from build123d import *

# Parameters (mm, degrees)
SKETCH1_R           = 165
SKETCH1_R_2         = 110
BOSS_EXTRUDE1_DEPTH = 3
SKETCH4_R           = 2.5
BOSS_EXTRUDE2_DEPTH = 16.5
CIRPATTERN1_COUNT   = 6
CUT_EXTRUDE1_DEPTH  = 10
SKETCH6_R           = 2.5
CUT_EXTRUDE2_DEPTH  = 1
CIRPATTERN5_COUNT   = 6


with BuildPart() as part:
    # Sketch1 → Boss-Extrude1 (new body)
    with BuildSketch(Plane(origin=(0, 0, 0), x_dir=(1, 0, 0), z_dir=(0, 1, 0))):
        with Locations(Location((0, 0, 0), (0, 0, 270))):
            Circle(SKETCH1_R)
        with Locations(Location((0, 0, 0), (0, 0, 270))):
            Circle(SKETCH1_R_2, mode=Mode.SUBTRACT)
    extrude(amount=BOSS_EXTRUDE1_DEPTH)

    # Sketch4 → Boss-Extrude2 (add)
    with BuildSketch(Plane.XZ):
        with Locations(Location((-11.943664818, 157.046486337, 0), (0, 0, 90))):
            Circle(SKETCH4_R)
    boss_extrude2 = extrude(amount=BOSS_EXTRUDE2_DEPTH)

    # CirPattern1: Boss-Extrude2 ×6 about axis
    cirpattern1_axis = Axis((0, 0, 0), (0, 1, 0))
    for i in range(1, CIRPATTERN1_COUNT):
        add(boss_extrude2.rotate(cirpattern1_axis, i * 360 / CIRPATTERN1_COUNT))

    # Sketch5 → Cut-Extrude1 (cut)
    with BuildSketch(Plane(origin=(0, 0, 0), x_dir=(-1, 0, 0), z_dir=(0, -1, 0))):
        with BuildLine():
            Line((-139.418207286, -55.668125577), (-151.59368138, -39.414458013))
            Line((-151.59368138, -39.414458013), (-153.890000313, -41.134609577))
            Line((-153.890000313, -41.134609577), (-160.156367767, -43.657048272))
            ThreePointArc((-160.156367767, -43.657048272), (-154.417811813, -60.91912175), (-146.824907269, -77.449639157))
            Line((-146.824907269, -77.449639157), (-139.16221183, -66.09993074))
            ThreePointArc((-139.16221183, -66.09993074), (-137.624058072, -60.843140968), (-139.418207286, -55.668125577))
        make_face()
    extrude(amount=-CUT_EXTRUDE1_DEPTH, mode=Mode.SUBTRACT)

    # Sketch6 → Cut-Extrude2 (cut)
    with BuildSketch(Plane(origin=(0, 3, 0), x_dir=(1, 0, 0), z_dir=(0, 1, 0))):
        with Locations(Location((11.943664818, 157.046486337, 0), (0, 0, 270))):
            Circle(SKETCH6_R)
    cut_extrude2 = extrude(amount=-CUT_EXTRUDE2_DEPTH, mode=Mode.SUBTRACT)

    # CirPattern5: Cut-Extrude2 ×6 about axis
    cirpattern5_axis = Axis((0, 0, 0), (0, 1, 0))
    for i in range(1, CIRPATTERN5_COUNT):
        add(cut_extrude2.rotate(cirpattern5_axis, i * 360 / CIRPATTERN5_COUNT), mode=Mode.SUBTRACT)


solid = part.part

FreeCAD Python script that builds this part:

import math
import FreeCAD as App
import Part
import Sketcher

V = App.Vector
Q = App.Units.Quantity

doc = App.newDocument("Part")
body = doc.addObject("PartDesign::Body", "Body")

sketch1 = body.newObject("Sketcher::SketchObject", "Sketch")
sketch1.AttachmentSupport = (doc.getObject("XZ_Plane"), [""])
sketch1.MapMode = "FlatFace"
sketch1.addGeometry(Part.Circle(V(0, 0, 0), V(0, 0, 1), 165), False)
sketch1.addGeometry(Part.Circle(V(0, 0, 0), V(0, 0, 1), 110), False)
sketch1.addConstraint(Sketcher.Constraint("Coincident", 0, 3, -1, 1))
sketch1.addConstraint(Sketcher.Constraint("Coincident", 1, 3, -1, 1))
sketch1.addConstraint(Sketcher.Constraint("Diameter", 0, Q("330 mm")))
sketch1.addConstraint(Sketcher.Constraint("Diameter", 1, Q("220 mm")))
pad1 = body.newObject("PartDesign::Pad", "Pad")
pad1.Profile = sketch1
pad1.Length = 3
pad1.Reversed = True

sketch2 = body.newObject("Sketcher::SketchObject", "Sketch001")
sketch2.AttachmentSupport = (doc.getObject("XZ_Plane"), [""])
sketch2.MapMode = "FlatFace"
sketch2.addGeometry(Part.Circle(V(-11.9, 157, 0), V(0, 0, 1), 2.5), False)
sketch2.addConstraint(Sketcher.Constraint("Diameter", 0, Q("5 mm")))
sketch2.addConstraint(Sketcher.Constraint("DistanceX", 0, 3, -1, 1, Q("11.943665 mm")))
sketch2.addConstraint(Sketcher.Constraint("DistanceY", -1, 1, 0, 3, Q("157.046486 mm")))
pad2 = body.newObject("PartDesign::Pad", "Pad001")
pad2.Profile = sketch2
pad2.Length = 16.5
doc.recompute()

polarpattern = body.newObject("PartDesign::PolarPattern", "PolarPattern")
polarpattern.Originals = [pad2]
polarpattern.Axis = (doc.getObject("Y_Axis"), [""])
polarpattern.Angle = 360
polarpattern.Occurrences = 6
body.Tip = polarpattern

sketch3 = body.newObject("Sketcher::SketchObject", "Sketch002")
sketch3.AttachmentSupport = (doc.getObject("XZ_Plane"), [""])
sketch3.MapMode = "FlatFace"
sketch3.addGeometry(Part.LineSegment(V(139.4, 55.7, 0), V(151.6, 39.4, 0)), False)
sketch3.addGeometry(Part.LineSegment(V(151.6, 39.4, 0), V(153.9, 41.1, 0)), False)
sketch3.addGeometry(Part.LineSegment(V(153.9, 41.1, 0), V(160.2, 43.7, 0)), False)
sketch3.addGeometry(Part.ArcOfCircle(Part.Circle(V(0, 0, 0), V(0, 0, 1), 166), math.radians(15.25), math.radians(27.81)), False)
sketch3.addGeometry(Part.LineSegment(V(146.8, 77.4, 0), V(139.2, 66.1, 0)), False)
sketch3.addGeometry(Part.ArcOfCircle(Part.Circle(V(146.6, 61.1, 0), V(0, 0, 1), 9), math.radians(146), math.radians(217)), False)
sketch3.addConstraint(Sketcher.Constraint("Coincident", 0, 2, 1, 1))
sketch3.addConstraint(Sketcher.Constraint("Coincident", 1, 2, 2, 1))
sketch3.addConstraint(Sketcher.Constraint("Coincident", 2, 2, 3, 1))
sketch3.addConstraint(Sketcher.Constraint("Coincident", 3, 2, 4, 1))
sketch3.addConstraint(Sketcher.Constraint("Tangent", 4, 2, 5, 1))
sketch3.addConstraint(Sketcher.Constraint("Tangent", 5, 2, 0, 1))
sketch3.addConstraint(Sketcher.Constraint("Coincident", 3, 3, -1, 1))
sketch3.addConstraint(Sketcher.Constraint("Perpendicular", 0, 1))
sketch3.addConstraint(Sketcher.Constraint("Radius", 3, Q("166 mm")))
sketch3.addConstraint(Sketcher.Constraint("Radius", 5, Q("9 mm")))
sketch3.addConstraint(Sketcher.Constraint("DistanceX", -1, 1, 1, 2, Q("153.89 mm")))
sketch3.addConstraint(Sketcher.Constraint("DistanceX", 5, 2, 3, 2, Q("7.4067 mm")))
sketch3.addConstraint(Sketcher.Constraint("Distance", 0, Q("20.308222 mm")))
sketch3.addConstraint(Sketcher.Constraint("Distance", 4, Q("13.694261 mm")))
sketch3.addConstraint(Sketcher.Constraint("DistanceX", -1, 1, 5, 3, Q("146.621349 mm")))
sketch3.addConstraint(Sketcher.Constraint("DistanceX", -1, 1, 0, 2, Q("151.593681 mm")))
sketch3.addConstraint(Sketcher.Constraint("DistanceY", -1, 1, 2, 2, Q("43.657048 mm")))
pocket1 = body.newObject("PartDesign::Pocket", "Pocket")
pocket1.Profile = sketch3
pocket1.Length = 10

sketch4 = body.newObject("Sketcher::SketchObject", "Sketch003")
sketch4.AttachmentSupport = (doc.getObject("XZ_Plane"), [""])
sketch4.MapMode = "FlatFace"
sketch4.AttachmentOffset = App.Placement(V(0, 0, -3), App.Rotation())
sketch4.addGeometry(Part.Circle(V(11.9, -157, 0), V(0, 0, 1), 2.5), False)
sketch4.addConstraint(Sketcher.Constraint("Diameter", 0, Q("5 mm")))
sketch4.addConstraint(Sketcher.Constraint("DistanceX", -1, 1, 0, 3, Q("11.943665 mm")))
sketch4.addConstraint(Sketcher.Constraint("DistanceY", 0, 3, -1, 1, Q("157.046486 mm")))
pocket2 = body.newObject("PartDesign::Pocket", "Pocket001")
pocket2.Profile = sketch4
pocket2.Length = 1
pocket2.Reversed = True
doc.recompute()

polarpattern2 = body.newObject("PartDesign::PolarPattern", "PolarPattern001")
polarpattern2.Originals = [pocket2]
polarpattern2.Axis = (doc.getObject("Y_Axis"), [""])
polarpattern2.Angle = 360
polarpattern2.Occurrences = 6
body.Tip = polarpattern2

doc.recompute()
